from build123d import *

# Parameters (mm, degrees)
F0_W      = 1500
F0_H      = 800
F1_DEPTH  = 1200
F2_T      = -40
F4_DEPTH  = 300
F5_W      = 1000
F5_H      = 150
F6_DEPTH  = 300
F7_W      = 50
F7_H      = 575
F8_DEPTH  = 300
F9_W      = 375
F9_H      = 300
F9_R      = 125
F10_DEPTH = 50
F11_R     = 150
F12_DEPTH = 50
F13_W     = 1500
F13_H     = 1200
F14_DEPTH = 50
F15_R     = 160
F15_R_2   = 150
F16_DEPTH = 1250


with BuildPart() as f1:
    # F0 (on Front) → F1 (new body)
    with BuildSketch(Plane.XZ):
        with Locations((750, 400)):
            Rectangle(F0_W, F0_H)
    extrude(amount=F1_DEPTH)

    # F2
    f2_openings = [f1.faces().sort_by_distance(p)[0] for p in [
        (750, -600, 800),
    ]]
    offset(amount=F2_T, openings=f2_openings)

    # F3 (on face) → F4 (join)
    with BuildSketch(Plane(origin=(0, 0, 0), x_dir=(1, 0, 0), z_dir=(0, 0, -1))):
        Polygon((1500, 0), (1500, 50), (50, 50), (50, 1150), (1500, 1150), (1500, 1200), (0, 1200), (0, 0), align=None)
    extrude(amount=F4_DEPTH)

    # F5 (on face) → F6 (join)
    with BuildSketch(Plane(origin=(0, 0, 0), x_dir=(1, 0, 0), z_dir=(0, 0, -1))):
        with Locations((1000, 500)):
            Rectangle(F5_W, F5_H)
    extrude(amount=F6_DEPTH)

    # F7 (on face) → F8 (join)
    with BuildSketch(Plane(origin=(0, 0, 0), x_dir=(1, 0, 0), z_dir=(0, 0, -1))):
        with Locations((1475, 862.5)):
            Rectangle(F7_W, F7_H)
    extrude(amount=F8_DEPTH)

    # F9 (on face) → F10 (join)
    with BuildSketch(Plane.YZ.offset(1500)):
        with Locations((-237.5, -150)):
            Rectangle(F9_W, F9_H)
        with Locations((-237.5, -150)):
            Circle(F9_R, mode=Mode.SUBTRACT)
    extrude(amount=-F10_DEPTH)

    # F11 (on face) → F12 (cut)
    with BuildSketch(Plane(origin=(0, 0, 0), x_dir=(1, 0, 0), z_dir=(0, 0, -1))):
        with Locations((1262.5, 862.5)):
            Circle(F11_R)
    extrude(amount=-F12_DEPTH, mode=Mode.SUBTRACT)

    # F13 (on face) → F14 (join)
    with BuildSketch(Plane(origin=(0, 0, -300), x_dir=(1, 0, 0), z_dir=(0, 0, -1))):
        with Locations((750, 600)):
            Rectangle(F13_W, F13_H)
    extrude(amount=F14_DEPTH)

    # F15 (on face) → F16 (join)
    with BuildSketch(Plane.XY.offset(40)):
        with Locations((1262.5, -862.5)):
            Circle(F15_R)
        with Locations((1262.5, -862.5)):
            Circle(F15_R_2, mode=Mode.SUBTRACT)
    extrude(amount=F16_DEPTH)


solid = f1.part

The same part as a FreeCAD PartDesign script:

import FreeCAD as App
import Part
import Sketcher

V = App.Vector
Q = App.Units.Quantity


def faces_at(feature, points):
    """Names of the faces that lie closest to the given points."""
    faces = feature.Shape.Faces
    near = lambda p: min(range(len(faces)), key=lambda i: faces[i].distToShape(Part.Vertex(*p))[0])
    return sorted({f"Face{near(p) + 1}" for p in points})

doc = App.newDocument("Part")
body = doc.addObject("PartDesign::Body", "Body")

sketch1 = body.newObject("Sketcher::SketchObject", "Sketch")
sketch1.AttachmentSupport = (doc.getObject("XZ_Plane"), [""])
sketch1.MapMode = "FlatFace"
sketch1.addGeometry(Part.LineSegment(V(0, 800, 0), V(0, 0, 0)), False)
sketch1.addGeometry(Part.LineSegment(V(0, 0, 0), V(1500, 0, 0)), False)
sketch1.addGeometry(Part.LineSegment(V(1500, 0, 0), V(1500, 800, 0)), False)
sketch1.addGeometry(Part.LineSegment(V(1500, 800, 0), V(0, 800, 0)), False)
sketch1.addConstraint(Sketcher.Constraint("Coincident", 0, 2, 1, 1))
sketch1.addConstraint(Sketcher.Constraint("Coincident", 1, 2, 2, 1))
sketch1.addConstraint(Sketcher.Constraint("Coincident", 2, 2, 3, 1))
sketch1.addConstraint(Sketcher.Constraint("Coincident", 3, 2, 0, 1))
sketch1.addConstraint(Sketcher.Constraint("Vertical", 0))
sketch1.addConstraint(Sketcher.Constraint("Horizontal", 1))
sketch1.addConstraint(Sketcher.Constraint("Vertical", 2))
sketch1.addConstraint(Sketcher.Constraint("Horizontal", 3))
sketch1.addConstraint(Sketcher.Constraint("Coincident", 0, 2, -1, 1))
sketch1.addConstraint(Sketcher.Constraint("DistanceX", 1, 1, 1, 2, Q("1500 mm")))
sketch1.addConstraint(Sketcher.Constraint("DistanceY", 0, 2, 0, 1, Q("800 mm")))
pad1 = body.newObject("PartDesign::Pad", "Pad")
pad1.Profile = sketch1
pad1.Length = 1200
doc.recompute()

thickness = body.newObject("PartDesign::Thickness", "Thickness")
thickness.Base = (pad1, faces_at(pad1, [(750, -600, 800)]))
thickness.Value = 40
thickness.Reversed = True
thickness.Join = "Arc"

sketch2 = body.newObject("Sketcher::SketchObject", "Sketch001")
sketch2.AttachmentSupport = (doc.getObject("XY_Plane"), [""])
sketch2.MapMode = "FlatFace"
sketch2.addGeometry(Part.LineSegment(V(1500, 0, 0), V(1500, -50, 0)), False)
sketch2.addGeometry(Part.LineSegment(V(1500, -50, 0), V(50, -50, 0)), False)
sketch2.addGeometry(Part.LineSegment(V(50, -50, 0), V(50, -1150, 0)), False)
sketch2.addGeometry(Part.LineSegment(V(50, -1150, 0), V(1500, -1150, 0)), False)
sketch2.addGeometry(Part.LineSegment(V(1500, -1150, 0), V(1500, -1200, 0)), False)
sketch2.addGeometry(Part.LineSegment(V(1500, -1200, 0), V(0, -1200, 0)), False)
sketch2.addGeometry(Part.LineSegment(V(0, -1200, 0), V(0, 0, 0)), False)
sketch2.addGeometry(Part.LineSegment(V(0, 0, 0), V(1500, 0, 0)), False)
sketch2.addConstraint(Sketcher.Constraint("Coincident", 0, 2, 1, 1))
sketch2.addConstraint(Sketcher.Constraint("Coincident", 1, 2, 2, 1))
sketch2.addConstraint(Sketcher.Constraint("Coincident", 2, 2, 3, 1))
sketch2.addConstraint(Sketcher.Constraint("Coincident", 3, 2, 4, 1))
sketch2.addConstraint(Sketcher.Constraint("Coincident", 4, 2, 5, 1))
sketch2.addConstraint(Sketcher.Constraint("Coincident", 5, 2, 6, 1))
sketch2.addConstraint(Sketcher.Constraint("Coincident", 6, 2, 7, 1))
sketch2.addConstraint(Sketcher.Constraint("Coincident", 7, 2, 0, 1))
sketch2.addConstraint(Sketcher.Constraint("Vertical", 0))
sketch2.addConstraint(Sketcher.Constraint("Horizontal", 1))
sketch2.addConstraint(Sketcher.Constraint("Vertical", 2))
sketch2.addConstraint(Sketcher.Constraint("Horizontal", 3))
sketch2.addConstraint(Sketcher.Constraint("Vertical", 4))
sketch2.addConstraint(Sketcher.Constraint("Horizontal", 5))
sketch2.addConstraint(Sketcher.Constraint("Vertical", 6))
sketch2.addConstraint(Sketcher.Constraint("Horizontal", 7))
sketch2.addConstraint(Sketcher.Constraint("Coincident", 6, 2, -1, 1))
sketch2.addConstraint(Sketcher.Constraint("Vertical", 0, 2, 3, 2))
sketch2.addConstraint(Sketcher.Constraint("Equal", 0, 4))
sketch2.addConstraint(Sketcher.Constraint("DistanceX", 1, 2, 1, 1, Q("1450 mm")))
sketch2.addConstraint(Sketcher.Constraint("DistanceX", 5, 2, 5, 1, Q("1500 mm")))
sketch2.addConstraint(Sketcher.Constraint("DistanceY", 0, 2, 0, 1, Q("50 mm")))
sketch2.addConstraint(Sketcher.Constraint("DistanceY", 2, 2, 2, 1, Q("1100 mm")))
pad2 = body.newObject("PartDesign::Pad", "Pad001")
pad2.Profile = sketch2
pad2.Length = 300
pad2.Reversed = True

sketch3 = body.newObject("Sketcher::SketchObject", "Sketch002")
sketch3.AttachmentSupport = (doc.getObject("XY_Plane"), [""])
sketch3.MapMode = "FlatFace"
sketch3.addGeometry(Part.LineSegment(V(500, -575, 0), V(500, -425, 0)), False)
sketch3.addGeometry(Part.LineSegment(V(500, -425, 0), V(1500, -425, 0)), False)
sketch3.addGeometry(Part.LineSegment(V(1500, -425, 0), V(1500, -575, 0)), False)
sketch3.addGeometry(Part.LineSegment(V(1500, -575, 0), V(500, -575, 0)), False)
sketch3.addConstraint(Sketcher.Constraint("Coincident", 0, 2, 1, 1))
sketch3.addConstraint(Sketcher.Constraint("Coincident", 1, 2, 2, 1))
sketch3.addConstraint(Sketcher.Constraint("Coincident", 2, 2, 3, 1))
sketch3.addConstraint(Sketcher.Constraint("Coincident", 3, 2, 0, 1))
sketch3.addConstraint(Sketcher.Constraint("Vertical", 0))
sketch3.addConstraint(Sketcher.Constraint("Horizontal", 1))
sketch3.addConstraint(Sketcher.Constraint("Vertical", 2))
sketch3.addConstraint(Sketcher.Constraint("Horizontal", 3))
sketch3.addConstraint(Sketcher.Constraint("DistanceX", 1, 1, 1, 2, Q("1000 mm")))
sketch3.addConstraint(Sketcher.Constraint("DistanceY", 0, 1, 0, 2, Q("150 mm")))
sketch3.addConstraint(Sketcher.Constraint("DistanceX", -1, 1, 0, 2, Q("500 mm")))
sketch3.addConstraint(Sketcher.Constraint("DistanceY", 0, 2, -1, 1, Q("425 mm")))
pad3 = body.newObject("PartDesign::Pad", "Pad002")
pad3.Profile = sketch3
pad3.Length = 300
pad3.Reversed = True

sketch4 = body.newObject("Sketcher::SketchObject", "Sketch003")
sketch4.AttachmentSupport = (doc.getObject("XY_Plane"), [""])
sketch4.MapMode = "FlatFace"
sketch4.addGeometry(Part.LineSegment(V(1450, -1150, 0), V(1450, -575, 0)), False)
sketch4.addGeometry(Part.LineSegment(V(1450, -575, 0), V(1500, -575, 0)), False)
sketch4.addGeometry(Part.LineSegment(V(1500, -575, 0), V(1500, -1150, 0)), False)
sketch4.addGeometry(Part.LineSegment(V(1500, -1150, 0), V(1450, -1150, 0)), False)
sketch4.addConstraint(Sketcher.Constraint("Coincident", 0, 2, 1, 1))
sketch4.addConstraint(Sketcher.Constraint("Coincident", 1, 2, 2, 1))
sketch4.addConstraint(Sketcher.Constraint("Coincident", 2, 2, 3, 1))
sketch4.addConstraint(Sketcher.Constraint("Coincident", 3, 2, 0, 1))
sketch4.addConstraint(Sketcher.Constraint("Vertical", 0))
sketch4.addConstraint(Sketcher.Constraint("Horizontal", 1))
sketch4.addConstraint(Sketcher.Constraint("Vertical", 2))
sketch4.addConstraint(Sketcher.Constraint("Horizontal", 3))
sketch4.addConstraint(Sketcher.Constraint("DistanceX", 1, 1, 1, 2, Q("50 mm")))
sketch4.addConstraint(Sketcher.Constraint("DistanceY", 0, 1, 0, 2, Q("575 mm")))
sketch4.addConstraint(Sketcher.Constraint("DistanceX", -1, 1, 0, 2, Q("1450 mm")))
sketch4.addConstraint(Sketcher.Constraint("DistanceY", 0, 2, -1, 1, Q("575 mm")))
pad4 = body.newObject("PartDesign::Pad", "Pad003")
pad4.Profile = sketch4
pad4.Length = 300
pad4.Reversed = True

sketch5 = body.newObject("Sketcher::SketchObject", "Sketch004")
sketch5.AttachmentSupport = (doc.getObject("YZ_Plane"), [""])
sketch5.MapMode = "FlatFace"
sketch5.AttachmentOffset = App.Placement(V(0, 0, 1500), App.Rotation())
sketch5.addGeometry(Part.LineSegment(V(-425, 0, 0), V(-425, -300, 0)), False)
sketch5.addGeometry(Part.LineSegment(V(-425, -300, 0), V(-50, -300, 0)), False)
sketch5.addGeometry(Part.LineSegment(V(-50, -300, 0), V(-50, 0, 0)), False)
sketch5.addGeometry(Part.LineSegment(V(-50, 0, 0), V(-425, 0, 0)), False)
sketch5.addGeometry(Part.Circle(V(-238, -150, 0), V(0, 0, 1), 125), False)
sketch5.addConstraint(Sketcher.Constraint("Coincident", 0, 2, 1, 1))
sketch5.addConstraint(Sketcher.Constraint("Coincident", 1, 2, 2, 1))
sketch5.addConstraint(Sketcher.Constraint("Coincident", 2, 2, 3, 1))
sketch5.addConstraint(Sketcher.Constraint("Coincident", 3, 2, 0, 1))
sketch5.addConstraint(Sketcher.Constraint("Vertical", 0))
sketch5.addConstraint(Sketcher.Constraint("Horizontal", 1))
sketch5.addConstraint(Sketcher.Constraint("Vertical", 2))
sketch5.addConstraint(Sketcher.Constraint("Horizontal", 3))
sketch5.addConstraint(Sketcher.Constraint("PointOnObject", 2, 2, -1))
sketch5.addConstraint(Sketcher.Constraint("Diameter", 4, Q("250 mm")))
sketch5.addConstraint(Sketcher.Constraint("DistanceX", 1, 1, 1, 2, Q("375 mm")))
sketch5.addConstraint(Sketcher.Constraint("DistanceY", 0, 2, 0, 1, Q("300 mm")))
sketch5.addConstraint(Sketcher.Constraint("DistanceY", 4, 3, -1, 1, Q("150 mm")))
sketch5.addConstraint(Sketcher.Constraint("DistanceX", 0, 2, -1, 1, Q("425 mm")))
sketch5.addConstraint(Sketcher.Constraint("DistanceX", 4, 3, -1, 1, Q("237.5 mm")))
pad5 = body.newObject("PartDesign::Pad", "Pad004")
pad5.Profile = sketch5
pad5.Length = 50
pad5.Reversed = True

sketch6 = body.newObject("Sketcher::SketchObject", "Sketch005")
sketch6.AttachmentSupport = (doc.getObject("XY_Plane"), [""])
sketch6.MapMode = "FlatFace"
sketch6.addGeometry(Part.Circle(V(1262, -862, 0), V(0, 0, 1), 150), False)
sketch6.addConstraint(Sketcher.Constraint("Diameter", 0, Q("300 mm")))
sketch6.addConstraint(Sketcher.Constraint("DistanceX", -1, 1, 0, 3, Q("1262.5 mm")))
sketch6.addConstraint(Sketcher.Constraint("DistanceY", 0, 3, -1, 1, Q("862.5 mm")))
pocket1 = body.newObject("PartDesign::Pocket", "Pocket")
pocket1.Profile = sketch6
pocket1.Length = 50
pocket1.Reversed = True

sketch7 = body.newObject("Sketcher::SketchObject", "Sketch006")
sketch7.AttachmentSupport = (doc.getObject("XY_Plane"), [""])
sketch7.MapMode = "FlatFace"
sketch7.AttachmentOffset = App.Placement(V(0, 0, -300), App.Rotation())
sketch7.addGeometry(Part.LineSegment(V(0, -1200, 0), V(0, 0, 0)), False)
sketch7.addGeometry(Part.LineSegment(V(0, 0, 0), V(1500, 0, 0)), False)
sketch7.addGeometry(Part.LineSegment(V(1500, 0, 0), V(1500, -1200, 0)), False)
sketch7.addGeometry(Part.LineSegment(V(1500, -1200, 0), V(0, -1200, 0)), False)
sketch7.addConstraint(Sketcher.Constraint("Coincident", 0, 2, 1, 1))
sketch7.addConstraint(Sketcher.Constraint("Coincident", 1, 2, 2, 1))
sketch7.addConstraint(Sketcher.Constraint("Coincident", 2, 2, 3, 1))
sketch7.addConstraint(Sketcher.Constraint("Coincident", 3, 2, 0, 1))
sketch7.addConstraint(Sketcher.Constraint("Vertical", 0))
sketch7.addConstraint(Sketcher.Constraint("Horizontal", 1))
sketch7.addConstraint(Sketcher.Constraint("Vertical", 2))
sketch7.addConstraint(Sketcher.Constraint("Horizontal", 3))
sketch7.addConstraint(Sketcher.Constraint("Coincident", 0, 2, -1, 1))
sketch7.addConstraint(Sketcher.Constraint("DistanceX", 1, 1, 1, 2, Q("1500 mm")))
sketch7.addConstraint(Sketcher.Constraint("DistanceY", 0, 1, 0, 2, Q("1200 mm")))
pad6 = body.newObject("PartDesign::Pad", "Pad005")
pad6.Profile = sketch7
pad6.Length = 50
pad6.Reversed = True

sketch8 = body.newObject("Sketcher::SketchObject", "Sketch007")
sketch8.AttachmentSupport = (doc.getObject("XY_Plane"), [""])
sketch8.MapMode = "FlatFace"
sketch8.AttachmentOffset = App.Placement(V(0, 0, 40), App.Rotation())
sketch8.addGeometry(Part.Circle(V(1262, -862, 0), V(0, 0, 1), 160), False)
sketch8.addGeometry(Part.Circle(V(1262, -862, 0), V(0, 0, 1), 150), False)
sketch8.addConstraint(Sketcher.Constraint("Coincident", 1, 3, 0, 3))
sketch8.addConstraint(Sketcher.Constraint("Diameter", 0, Q("320 mm")))
sketch8.addConstraint(Sketcher.Constraint("Diameter", 1, Q("300 mm")))
sketch8.addConstraint(Sketcher.Constraint("DistanceX", -1, 1, 0, 3, Q("1262.5 mm")))
sketch8.addConstraint(Sketcher.Constraint("DistanceY", 0, 3, -1, 1, Q("862.5 mm")))
pad7 = body.newObject("PartDesign::Pad", "Pad006")
pad7.Profile = sketch8
pad7.Length = 1250

doc.recompute()
